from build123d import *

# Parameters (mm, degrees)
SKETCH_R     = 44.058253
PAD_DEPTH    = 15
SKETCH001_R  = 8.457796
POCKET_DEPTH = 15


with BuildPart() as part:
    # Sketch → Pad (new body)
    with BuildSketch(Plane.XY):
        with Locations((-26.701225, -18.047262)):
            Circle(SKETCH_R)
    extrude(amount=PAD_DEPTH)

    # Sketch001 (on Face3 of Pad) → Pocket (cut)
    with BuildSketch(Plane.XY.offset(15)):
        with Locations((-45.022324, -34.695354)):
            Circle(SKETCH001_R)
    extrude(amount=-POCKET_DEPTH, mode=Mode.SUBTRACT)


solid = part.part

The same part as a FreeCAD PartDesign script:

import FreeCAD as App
import Part
import Sketcher
from FreeCAD import Vector

doc = App.newDocument("Part")
body = doc.addObject("PartDesign::Body", "Body")

# Sketch on XY plane
sketch1 = body.newObject("Sketcher::SketchObject", "Sketch")
sketch1.AttachmentSupport = (doc.getObject("XY_Plane"), [""])
sketch1.MapMode = "FlatFace"
sketch1.addGeometry(Part.Circle(Vector(-27, -18, 0), Vector(0, 0, 1), 44), False)
sketch1.addConstraint(Sketcher.Constraint("Diameter", 0, 88.116506))
sketch1.addConstraint(Sketcher.Constraint("DistanceY", 0, 3, -1, 1, 18.047262))
sketch1.addConstraint(Sketcher.Constraint("DistanceX", 0, 3, -1, 1, 26.701225))
pad1 = body.newObject("PartDesign::Pad", "Pad")
pad1.Profile = sketch1
pad1.Length = 15

# Sketch on XY plane
sketch2 = body.newObject("Sketcher::SketchObject", "Sketch001")
sketch2.AttachmentSupport = (doc.getObject("XY_Plane"), [""])
sketch2.MapMode = "FlatFace"
sketch2.AttachmentOffset = App.Placement(Vector(0, 0, 15), App.Rotation())
sketch2.addGeometry(Part.Circle(Vector(-45, -35, 0), Vector(0, 0, 1), 8), False)
sketch2.addConstraint(Sketcher.Constraint("Diameter", 0, 16.915592))
sketch2.addConstraint(Sketcher.Constraint("DistanceX", 0, 3, -1, 1, 45.022324))
sketch2.addConstraint(Sketcher.Constraint("DistanceY", 0, 3, -1, 1, 34.695354))
pocket1 = body.newObject("PartDesign::Pocket", "Pocket")
pocket1.Profile = sketch2
pocket1.Length = 15

doc.recompute()
